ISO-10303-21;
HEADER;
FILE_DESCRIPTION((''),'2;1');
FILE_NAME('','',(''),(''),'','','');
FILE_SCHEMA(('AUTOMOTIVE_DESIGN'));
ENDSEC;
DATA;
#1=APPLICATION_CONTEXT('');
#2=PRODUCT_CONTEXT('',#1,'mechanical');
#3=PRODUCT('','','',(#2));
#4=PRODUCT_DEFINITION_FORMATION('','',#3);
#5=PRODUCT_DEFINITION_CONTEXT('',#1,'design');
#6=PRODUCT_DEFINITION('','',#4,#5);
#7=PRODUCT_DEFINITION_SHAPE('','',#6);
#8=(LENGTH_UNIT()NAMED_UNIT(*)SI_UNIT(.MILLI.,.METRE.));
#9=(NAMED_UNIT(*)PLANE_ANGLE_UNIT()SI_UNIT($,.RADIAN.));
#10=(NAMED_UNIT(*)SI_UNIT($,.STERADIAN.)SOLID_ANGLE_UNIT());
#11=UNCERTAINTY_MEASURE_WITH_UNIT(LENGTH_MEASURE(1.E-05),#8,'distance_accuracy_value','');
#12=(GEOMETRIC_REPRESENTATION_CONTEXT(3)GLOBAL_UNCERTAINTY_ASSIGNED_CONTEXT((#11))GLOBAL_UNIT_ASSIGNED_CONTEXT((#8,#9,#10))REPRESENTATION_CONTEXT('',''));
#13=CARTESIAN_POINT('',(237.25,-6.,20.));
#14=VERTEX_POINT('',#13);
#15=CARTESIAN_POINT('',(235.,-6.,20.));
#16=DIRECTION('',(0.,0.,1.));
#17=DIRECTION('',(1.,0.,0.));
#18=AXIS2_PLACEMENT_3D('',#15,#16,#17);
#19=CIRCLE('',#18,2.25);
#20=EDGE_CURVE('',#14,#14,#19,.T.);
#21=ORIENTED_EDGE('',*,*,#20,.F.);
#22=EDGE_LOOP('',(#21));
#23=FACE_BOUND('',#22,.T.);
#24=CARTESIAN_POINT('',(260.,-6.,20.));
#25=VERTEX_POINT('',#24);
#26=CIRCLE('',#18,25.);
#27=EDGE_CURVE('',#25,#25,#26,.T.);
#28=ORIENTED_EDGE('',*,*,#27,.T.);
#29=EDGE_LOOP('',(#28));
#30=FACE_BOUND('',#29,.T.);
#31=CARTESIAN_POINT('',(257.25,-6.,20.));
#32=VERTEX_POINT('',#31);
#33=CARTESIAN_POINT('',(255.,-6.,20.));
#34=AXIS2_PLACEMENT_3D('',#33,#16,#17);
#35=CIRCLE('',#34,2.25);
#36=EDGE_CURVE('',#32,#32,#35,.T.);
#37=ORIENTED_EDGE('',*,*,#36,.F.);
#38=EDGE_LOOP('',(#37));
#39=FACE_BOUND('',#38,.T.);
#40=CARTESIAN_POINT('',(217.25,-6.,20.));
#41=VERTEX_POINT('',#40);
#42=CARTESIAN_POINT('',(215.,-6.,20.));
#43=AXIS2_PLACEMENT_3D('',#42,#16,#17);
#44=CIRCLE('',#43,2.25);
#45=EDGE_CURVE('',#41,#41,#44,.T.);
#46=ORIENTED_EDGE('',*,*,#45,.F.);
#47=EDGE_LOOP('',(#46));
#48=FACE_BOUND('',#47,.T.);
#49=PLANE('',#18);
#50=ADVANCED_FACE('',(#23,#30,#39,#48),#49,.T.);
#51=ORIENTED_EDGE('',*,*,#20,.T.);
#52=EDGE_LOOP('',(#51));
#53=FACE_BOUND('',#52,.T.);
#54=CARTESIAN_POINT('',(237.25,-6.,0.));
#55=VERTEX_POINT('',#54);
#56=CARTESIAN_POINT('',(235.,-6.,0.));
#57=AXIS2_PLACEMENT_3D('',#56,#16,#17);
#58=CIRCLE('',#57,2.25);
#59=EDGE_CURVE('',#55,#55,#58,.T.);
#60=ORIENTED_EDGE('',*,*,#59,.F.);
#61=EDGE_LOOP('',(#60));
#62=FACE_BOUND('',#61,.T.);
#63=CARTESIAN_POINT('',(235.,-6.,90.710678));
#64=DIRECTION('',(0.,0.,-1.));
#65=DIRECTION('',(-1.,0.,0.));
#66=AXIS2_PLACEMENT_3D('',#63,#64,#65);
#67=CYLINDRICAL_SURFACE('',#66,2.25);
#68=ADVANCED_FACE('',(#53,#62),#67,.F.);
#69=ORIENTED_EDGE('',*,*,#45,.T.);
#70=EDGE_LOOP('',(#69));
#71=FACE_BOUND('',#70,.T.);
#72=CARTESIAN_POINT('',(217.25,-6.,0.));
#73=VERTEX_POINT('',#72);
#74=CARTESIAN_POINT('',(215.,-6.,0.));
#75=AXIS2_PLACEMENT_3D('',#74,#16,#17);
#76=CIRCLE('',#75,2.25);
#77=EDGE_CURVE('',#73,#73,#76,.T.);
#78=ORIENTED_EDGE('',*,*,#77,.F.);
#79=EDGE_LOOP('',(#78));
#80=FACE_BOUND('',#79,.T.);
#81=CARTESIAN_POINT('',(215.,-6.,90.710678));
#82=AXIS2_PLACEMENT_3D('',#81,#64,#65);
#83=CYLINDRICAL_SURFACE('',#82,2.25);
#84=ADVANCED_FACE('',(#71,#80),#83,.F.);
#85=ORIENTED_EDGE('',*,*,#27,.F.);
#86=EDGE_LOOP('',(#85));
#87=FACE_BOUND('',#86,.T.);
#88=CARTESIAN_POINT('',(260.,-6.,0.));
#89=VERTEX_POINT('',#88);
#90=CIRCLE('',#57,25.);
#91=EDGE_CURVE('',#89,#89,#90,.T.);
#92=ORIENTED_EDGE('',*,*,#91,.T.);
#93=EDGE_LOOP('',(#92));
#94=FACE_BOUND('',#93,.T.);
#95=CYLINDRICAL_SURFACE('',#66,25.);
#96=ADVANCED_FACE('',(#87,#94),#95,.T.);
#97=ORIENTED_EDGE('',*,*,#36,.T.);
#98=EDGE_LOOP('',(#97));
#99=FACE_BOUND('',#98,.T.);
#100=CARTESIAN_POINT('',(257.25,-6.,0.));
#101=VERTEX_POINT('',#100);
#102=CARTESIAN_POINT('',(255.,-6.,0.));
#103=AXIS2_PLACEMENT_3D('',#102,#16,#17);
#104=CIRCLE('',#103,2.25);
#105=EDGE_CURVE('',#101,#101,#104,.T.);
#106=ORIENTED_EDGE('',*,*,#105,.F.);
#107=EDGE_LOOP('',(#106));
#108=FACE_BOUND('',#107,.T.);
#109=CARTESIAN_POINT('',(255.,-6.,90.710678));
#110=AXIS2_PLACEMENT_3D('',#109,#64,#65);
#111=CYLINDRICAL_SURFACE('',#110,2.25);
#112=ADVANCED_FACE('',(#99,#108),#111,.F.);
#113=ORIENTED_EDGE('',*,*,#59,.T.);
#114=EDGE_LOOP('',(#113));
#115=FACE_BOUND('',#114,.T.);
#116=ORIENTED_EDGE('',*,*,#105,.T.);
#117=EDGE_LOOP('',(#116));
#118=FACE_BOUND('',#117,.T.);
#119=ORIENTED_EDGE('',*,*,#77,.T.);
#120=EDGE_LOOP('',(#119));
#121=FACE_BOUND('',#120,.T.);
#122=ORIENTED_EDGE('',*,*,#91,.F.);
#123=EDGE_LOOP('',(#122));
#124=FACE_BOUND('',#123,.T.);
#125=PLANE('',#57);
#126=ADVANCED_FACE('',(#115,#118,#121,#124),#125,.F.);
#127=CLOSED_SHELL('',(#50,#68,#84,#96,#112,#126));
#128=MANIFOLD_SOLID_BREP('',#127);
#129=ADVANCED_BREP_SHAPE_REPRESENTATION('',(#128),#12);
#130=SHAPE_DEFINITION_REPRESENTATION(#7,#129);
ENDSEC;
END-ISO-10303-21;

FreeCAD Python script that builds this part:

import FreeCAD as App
import Part
import Sketcher

doc = App.newDocument("Part")
body = doc.addObject("PartDesign::Body", "Body")

sketch1 = body.newObject("Sketcher::SketchObject", "Sketch")
sketch1.AttachmentSupport = (doc.getObject("XY_Plane"), [""])
sketch1.MapMode = "FlatFace"
sketch1.addGeometry([
    Part.Circle(App.Vector(235, -6, 0), App.Vector(0, 0, 1), 25),
    Part.Circle(App.Vector(215, -6, 0), App.Vector(0, 0, 1), 2.25),
    Part.Circle(App.Vector(235, -6, 0), App.Vector(0, 0, 1), 2.25),
    Part.Circle(App.Vector(255, -6, 0), App.Vector(0, 0, 1), 2.25),
], False)
sketch1.addConstraint([
    Sketcher.Constraint("Coincident", 2, 3, 0, 3),
    Sketcher.Constraint("Equal", 1, 2),
    Sketcher.Constraint("Equal", 2, 3),
    Sketcher.Constraint("Horizontal", 0, 3, 1, 3),
    Sketcher.Constraint("Horizontal", 2, 3, 3, 3),
    Sketcher.Constraint("Diameter", 0, 50.0),
    Sketcher.Constraint("Diameter", 1, 4.5),
    Sketcher.Constraint("DistanceX", -1, 1, 0, 3, 235.0),
    Sketcher.Constraint("DistanceY", 0, 3, -1, 1, 6.0),
    Sketcher.Constraint("DistanceX", -1, 1, 1, 3, 215.0),
    Sketcher.Constraint("DistanceX", -1, 1, 3, 3, 255.0),
])
pad1 = body.newObject("PartDesign::Pad", "Pad")
pad1.Profile = sketch1
pad1.Length = 20

doc.recompute()
